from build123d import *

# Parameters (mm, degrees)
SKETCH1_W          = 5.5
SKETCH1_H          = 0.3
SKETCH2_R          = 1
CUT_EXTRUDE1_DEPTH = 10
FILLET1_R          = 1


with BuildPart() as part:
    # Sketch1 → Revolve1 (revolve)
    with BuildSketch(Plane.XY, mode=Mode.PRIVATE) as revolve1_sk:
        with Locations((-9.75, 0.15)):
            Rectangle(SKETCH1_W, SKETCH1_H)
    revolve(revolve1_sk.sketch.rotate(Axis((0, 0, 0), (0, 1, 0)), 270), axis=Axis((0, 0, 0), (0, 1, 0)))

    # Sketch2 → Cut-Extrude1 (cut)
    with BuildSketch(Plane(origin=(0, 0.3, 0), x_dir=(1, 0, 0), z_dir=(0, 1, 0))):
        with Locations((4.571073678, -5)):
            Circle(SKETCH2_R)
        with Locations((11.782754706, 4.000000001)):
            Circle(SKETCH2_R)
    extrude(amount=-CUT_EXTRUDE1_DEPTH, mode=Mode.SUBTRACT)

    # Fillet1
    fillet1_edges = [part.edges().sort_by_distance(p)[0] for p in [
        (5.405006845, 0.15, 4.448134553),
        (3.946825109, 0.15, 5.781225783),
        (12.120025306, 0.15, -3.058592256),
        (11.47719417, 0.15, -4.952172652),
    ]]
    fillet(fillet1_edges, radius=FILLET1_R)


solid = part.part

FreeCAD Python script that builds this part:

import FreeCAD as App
import Part
import Sketcher


def edges_at(feature, points):
    """Names of the edges that pass closest to the given points."""
    edges = feature.Shape.Edges
    near = lambda p: min(range(len(edges)), key=lambda i: edges[i].distToShape(Part.Vertex(*p))[0])
    return sorted({f"Edge{near(p) + 1}" for p in points})

doc = App.newDocument("Part")
body = doc.addObject("PartDesign::Body", "Body")

# Sketch on XY plane
sketch1 = doc.addObject("Sketcher::SketchObject", "Sketch")
body.addObject(sketch1)
sketch1.AttachmentSupport = (doc.XY_Plane, [""])
sketch1.MapMode = "FlatFace"
sketch1.addGeometry([
    Part.LineSegment(App.Vector(-12.5, 0.3, 0), App.Vector(-12.5, 0, 0)),
    Part.LineSegment(App.Vector(-12.5, 0, 0), App.Vector(-7, 0, 0)),
    Part.LineSegment(App.Vector(-7, 0, 0), App.Vector(-7, 0.3, 0)),
    Part.LineSegment(App.Vector(-7, 0.3, 0), App.Vector(-12.5, 0.3, 0)),
], False)
sketch1.addConstraint([
    Sketcher.Constraint("Coincident", 0, 2, 1, 1),
    Sketcher.Constraint("Coincident", 1, 2, 2, 1),
    Sketcher.Constraint("Coincident", 2, 2, 3, 1),
    Sketcher.Constraint("Coincident", 3, 2, 0, 1),
    Sketcher.Constraint("Vertical", 0),
    Sketcher.Constraint("Horizontal", 1),
    Sketcher.Constraint("Vertical", 2),
    Sketcher.Constraint("Horizontal", 3),
    Sketcher.Constraint("PointOnObject", 0, 2, -1),
    Sketcher.Constraint("DistanceX", 1, 1, 1, 2, 5.5),
    Sketcher.Constraint("DistanceY", 0, 2, 0, 1, 0.3),
    Sketcher.Constraint("DistanceX", 1, 2, -1, 1, 7.0),
])
revolution = doc.addObject("PartDesign::Revolution", "Revolution")
body.addObject(revolution)
revolution.Profile = sketch1
revolution.ReferenceAxis = (sketch1, ["V_Axis"])
revolution.Angle = 360

# Sketch on XZ plane
sketch2 = doc.addObject("Sketcher::SketchObject", "Sketch001")
body.addObject(sketch2)
sketch2.AttachmentSupport = (doc.XZ_Plane, [""])
sketch2.MapMode = "FlatFace"
sketch2.AttachmentOffset = App.Placement(App.Vector(0, 0, -0.3), App.Rotation())
sketch2.addGeometry([
    Part.Circle(App.Vector(4.571074, 5, 0), App.Vector(0, 0, 1), 1),
    Part.Circle(App.Vector(11.782755, -4, 0), App.Vector(0, 0, 1), 1),
], False)
sketch2.addConstraint([
    Sketcher.Constraint("Equal", 0, 1),
    Sketcher.Constraint("Diameter", 0, 2.0),
    Sketcher.Constraint("DistanceY", -1, 1, 0, 3, 5.0),
    Sketcher.Constraint("DistanceY", 1, 3, -1, 1, 4.0),
    Sketcher.Constraint("DistanceX", 0, 3, 1, 3, 7.211681),
    Sketcher.Constraint("DistanceX", -1, 1, 0, 3, 4.571074),
])
pocket1 = doc.addObject("PartDesign::Pocket", "Pocket")
body.addObject(pocket1)
pocket1.Profile = sketch2
pocket1.Length = 10
pocket1.Reversed = True
doc.recompute()

fillet = doc.addObject("PartDesign::Fillet", "Fillet")
body.addObject(fillet)
fillet.Base = (pocket1, edges_at(pocket1, [
    (5.405, 0.15, 4.448),
    (3.947, 0.15, 5.781),
    (12.12, 0.15, -3.059),
    (11.477, 0.15, -4.952),
]))
fillet.Radius = 1

doc.recompute()
